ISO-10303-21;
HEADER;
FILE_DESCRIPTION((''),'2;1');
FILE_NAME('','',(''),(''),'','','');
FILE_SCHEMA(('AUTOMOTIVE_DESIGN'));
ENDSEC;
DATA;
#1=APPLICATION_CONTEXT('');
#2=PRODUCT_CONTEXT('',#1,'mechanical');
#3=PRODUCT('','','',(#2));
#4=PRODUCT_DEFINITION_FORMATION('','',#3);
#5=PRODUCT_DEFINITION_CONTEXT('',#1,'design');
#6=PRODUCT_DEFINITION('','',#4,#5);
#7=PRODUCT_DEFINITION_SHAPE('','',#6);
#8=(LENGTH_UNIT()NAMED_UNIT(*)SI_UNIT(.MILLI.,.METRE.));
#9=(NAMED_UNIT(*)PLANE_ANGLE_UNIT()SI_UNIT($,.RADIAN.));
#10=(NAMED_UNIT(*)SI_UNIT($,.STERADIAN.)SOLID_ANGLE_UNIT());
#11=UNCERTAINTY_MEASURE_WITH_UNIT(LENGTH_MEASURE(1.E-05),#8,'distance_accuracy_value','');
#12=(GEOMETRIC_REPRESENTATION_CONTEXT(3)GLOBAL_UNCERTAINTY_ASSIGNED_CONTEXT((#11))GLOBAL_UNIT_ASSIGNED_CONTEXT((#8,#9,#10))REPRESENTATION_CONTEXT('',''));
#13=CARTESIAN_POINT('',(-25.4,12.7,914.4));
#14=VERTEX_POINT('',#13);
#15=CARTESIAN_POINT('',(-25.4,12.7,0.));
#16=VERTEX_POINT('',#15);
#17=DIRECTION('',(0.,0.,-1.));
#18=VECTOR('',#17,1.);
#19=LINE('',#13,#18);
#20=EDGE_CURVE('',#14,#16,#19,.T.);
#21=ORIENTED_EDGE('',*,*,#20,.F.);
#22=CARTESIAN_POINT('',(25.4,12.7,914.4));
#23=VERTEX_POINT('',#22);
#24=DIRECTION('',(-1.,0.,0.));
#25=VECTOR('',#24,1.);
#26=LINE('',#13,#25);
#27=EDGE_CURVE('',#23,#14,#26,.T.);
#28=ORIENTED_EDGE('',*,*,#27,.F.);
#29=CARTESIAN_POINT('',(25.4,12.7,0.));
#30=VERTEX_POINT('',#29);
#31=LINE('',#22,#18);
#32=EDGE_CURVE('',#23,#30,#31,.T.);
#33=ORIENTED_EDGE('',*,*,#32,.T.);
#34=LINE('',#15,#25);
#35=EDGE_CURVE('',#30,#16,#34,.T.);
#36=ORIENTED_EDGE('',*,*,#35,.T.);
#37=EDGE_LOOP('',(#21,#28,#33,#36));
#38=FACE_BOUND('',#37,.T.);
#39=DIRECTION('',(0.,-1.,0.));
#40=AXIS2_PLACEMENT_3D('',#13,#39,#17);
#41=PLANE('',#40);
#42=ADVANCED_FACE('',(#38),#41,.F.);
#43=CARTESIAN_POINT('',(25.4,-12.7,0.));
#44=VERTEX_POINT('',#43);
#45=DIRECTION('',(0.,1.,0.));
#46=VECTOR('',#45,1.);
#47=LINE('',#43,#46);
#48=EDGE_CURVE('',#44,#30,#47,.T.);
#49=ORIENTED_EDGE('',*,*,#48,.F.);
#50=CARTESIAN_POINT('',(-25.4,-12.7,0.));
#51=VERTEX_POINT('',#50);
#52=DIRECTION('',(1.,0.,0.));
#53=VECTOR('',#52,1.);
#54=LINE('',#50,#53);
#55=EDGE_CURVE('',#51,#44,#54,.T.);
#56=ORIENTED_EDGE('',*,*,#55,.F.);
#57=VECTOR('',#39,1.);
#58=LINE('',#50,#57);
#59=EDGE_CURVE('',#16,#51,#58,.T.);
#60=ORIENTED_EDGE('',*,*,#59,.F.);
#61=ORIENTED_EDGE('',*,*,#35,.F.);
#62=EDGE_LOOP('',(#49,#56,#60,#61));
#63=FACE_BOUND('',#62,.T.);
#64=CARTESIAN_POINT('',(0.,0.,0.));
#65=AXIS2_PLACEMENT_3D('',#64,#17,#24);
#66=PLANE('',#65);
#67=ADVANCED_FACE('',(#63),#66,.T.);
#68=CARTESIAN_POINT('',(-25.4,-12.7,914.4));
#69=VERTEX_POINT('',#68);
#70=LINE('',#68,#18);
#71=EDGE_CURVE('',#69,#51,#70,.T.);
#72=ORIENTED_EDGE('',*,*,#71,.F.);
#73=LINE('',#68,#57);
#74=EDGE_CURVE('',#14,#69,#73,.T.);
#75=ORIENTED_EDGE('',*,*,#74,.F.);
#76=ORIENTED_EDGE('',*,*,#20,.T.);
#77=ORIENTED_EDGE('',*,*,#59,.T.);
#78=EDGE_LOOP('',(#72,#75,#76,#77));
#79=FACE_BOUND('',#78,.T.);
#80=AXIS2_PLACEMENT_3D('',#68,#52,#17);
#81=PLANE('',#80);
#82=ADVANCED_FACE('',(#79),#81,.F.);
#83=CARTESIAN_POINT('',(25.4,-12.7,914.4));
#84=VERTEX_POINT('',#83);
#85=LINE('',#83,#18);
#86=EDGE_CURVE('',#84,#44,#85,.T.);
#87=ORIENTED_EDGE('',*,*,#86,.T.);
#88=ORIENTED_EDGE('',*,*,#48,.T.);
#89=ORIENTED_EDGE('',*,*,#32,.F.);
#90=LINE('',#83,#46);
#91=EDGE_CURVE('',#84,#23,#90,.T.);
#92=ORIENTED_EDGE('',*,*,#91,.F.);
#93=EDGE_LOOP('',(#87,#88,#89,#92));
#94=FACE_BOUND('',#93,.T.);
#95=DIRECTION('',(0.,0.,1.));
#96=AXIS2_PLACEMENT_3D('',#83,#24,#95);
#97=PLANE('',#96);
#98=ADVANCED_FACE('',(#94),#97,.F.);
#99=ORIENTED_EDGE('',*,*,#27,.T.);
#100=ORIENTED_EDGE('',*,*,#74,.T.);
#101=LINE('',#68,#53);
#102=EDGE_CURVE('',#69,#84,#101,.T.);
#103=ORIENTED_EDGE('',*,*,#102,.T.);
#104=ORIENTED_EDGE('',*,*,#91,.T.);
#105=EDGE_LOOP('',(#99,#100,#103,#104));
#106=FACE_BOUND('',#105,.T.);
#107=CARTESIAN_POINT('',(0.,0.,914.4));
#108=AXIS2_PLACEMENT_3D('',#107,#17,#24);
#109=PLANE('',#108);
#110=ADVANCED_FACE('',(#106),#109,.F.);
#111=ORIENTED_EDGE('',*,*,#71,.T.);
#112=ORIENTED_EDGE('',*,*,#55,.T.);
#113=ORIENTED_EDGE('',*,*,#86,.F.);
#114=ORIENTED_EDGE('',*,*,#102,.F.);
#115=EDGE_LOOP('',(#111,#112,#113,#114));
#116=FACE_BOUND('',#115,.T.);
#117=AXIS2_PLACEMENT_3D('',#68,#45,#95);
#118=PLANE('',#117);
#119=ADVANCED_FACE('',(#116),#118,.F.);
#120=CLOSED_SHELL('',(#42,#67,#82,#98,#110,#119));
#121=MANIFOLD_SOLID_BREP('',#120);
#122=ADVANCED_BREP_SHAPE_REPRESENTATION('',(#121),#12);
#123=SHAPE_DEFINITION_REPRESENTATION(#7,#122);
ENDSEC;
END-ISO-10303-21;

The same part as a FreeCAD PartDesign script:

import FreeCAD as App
import Part
import Sketcher
from FreeCAD import Vector
Q = App.Units.Quantity

doc = App.newDocument("Part")
body = doc.addObject("PartDesign::Body", "Body")

# Sketch on XY plane
sketch1 = body.newObject("Sketcher::SketchObject", "Sketch")
sketch1.AttachmentSupport = (doc.getObject("XY_Plane"), [""])
sketch1.MapMode = "FlatFace"
sketch1.addGeometry(Part.LineSegment(Vector(-25.4, 12.7, 0), Vector(-25.4, -12.7, 0)), False)
sketch1.addGeometry(Part.LineSegment(Vector(-25.4, -12.7, 0), Vector(25.4, -12.7, 0)), False)
sketch1.addGeometry(Part.LineSegment(Vector(25.4, -12.7, 0), Vector(25.4, 12.7, 0)), False)
sketch1.addGeometry(Part.LineSegment(Vector(25.4, 12.7, 0), Vector(-25.4, 12.7, 0)), False)
sketch1.addConstraint(Sketcher.Constraint("Coincident", 0, 2, 1, 1))
sketch1.addConstraint(Sketcher.Constraint("Coincident", 1, 2, 2, 1))
sketch1.addConstraint(Sketcher.Constraint("Coincident", 2, 2, 3, 1))
sketch1.addConstraint(Sketcher.Constraint("Coincident", 3, 2, 0, 1))
sketch1.addConstraint(Sketcher.Constraint("Vertical", 0))
sketch1.addConstraint(Sketcher.Constraint("Horizontal", 1))
sketch1.addConstraint(Sketcher.Constraint("Vertical", 2))
sketch1.addConstraint(Sketcher.Constraint("Horizontal", 3))
sketch1.addConstraint(Sketcher.Constraint("Symmetric", 0, 2, 2, 2, -1, 1))
sketch1.addConstraint(Sketcher.Constraint("DistanceX", 1, 1, 1, 2, Q("2 in")))
sketch1.addConstraint(Sketcher.Constraint("DistanceY", 0, 2, 0, 1, Q("1 in")))
pad1 = body.newObject("PartDesign::Pad", "Pad")
pad1.Profile = sketch1
pad1.Length = Q("36 in")

doc.recompute()
